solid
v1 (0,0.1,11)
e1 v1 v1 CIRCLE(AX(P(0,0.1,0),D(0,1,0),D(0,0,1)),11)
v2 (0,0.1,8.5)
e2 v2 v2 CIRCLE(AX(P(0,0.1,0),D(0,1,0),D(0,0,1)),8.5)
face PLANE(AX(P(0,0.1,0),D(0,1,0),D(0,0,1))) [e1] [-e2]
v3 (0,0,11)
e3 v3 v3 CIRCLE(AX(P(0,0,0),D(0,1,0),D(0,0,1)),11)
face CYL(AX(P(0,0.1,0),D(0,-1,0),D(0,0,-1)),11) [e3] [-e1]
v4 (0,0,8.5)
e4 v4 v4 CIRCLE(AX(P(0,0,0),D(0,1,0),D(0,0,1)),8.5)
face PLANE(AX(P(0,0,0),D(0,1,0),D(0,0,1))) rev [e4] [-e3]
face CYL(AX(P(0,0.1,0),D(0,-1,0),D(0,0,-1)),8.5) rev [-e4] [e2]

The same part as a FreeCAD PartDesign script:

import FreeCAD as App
import Part
import Sketcher
from FreeCAD import Vector
Q = App.Units.Quantity

doc = App.newDocument("Part")
body = doc.addObject("PartDesign::Body", "Body")

# Sketch on XZ plane
sketch1 = body.newObject("Sketcher::SketchObject", "Sketch")
sketch1.AttachmentSupport = (doc.getObject("XZ_Plane"), [""])
sketch1.MapMode = "FlatFace"
sketch1.addGeometry([
    Part.Circle(Vector(0, 0, 0), Vector(0, 0, 1), 11),
    Part.Circle(Vector(0, 0, 0), Vector(0, 0, 1), 8.5),
], False)
sketch1.addConstraint([
    Sketcher.Constraint("Coincident", 0, 3, -1, 1),
    Sketcher.Constraint("Coincident", 1, 3, -1, 1),
    Sketcher.Constraint("Diameter", 0, Q("22 mm")),
    Sketcher.Constraint("Diameter", 1, Q("17 mm")),
])
pad1 = body.newObject("PartDesign::Pad", "Pad")
pad1.Profile = sketch1
pad1.Length = 0.1
pad1.Reversed = True

doc.recompute()
